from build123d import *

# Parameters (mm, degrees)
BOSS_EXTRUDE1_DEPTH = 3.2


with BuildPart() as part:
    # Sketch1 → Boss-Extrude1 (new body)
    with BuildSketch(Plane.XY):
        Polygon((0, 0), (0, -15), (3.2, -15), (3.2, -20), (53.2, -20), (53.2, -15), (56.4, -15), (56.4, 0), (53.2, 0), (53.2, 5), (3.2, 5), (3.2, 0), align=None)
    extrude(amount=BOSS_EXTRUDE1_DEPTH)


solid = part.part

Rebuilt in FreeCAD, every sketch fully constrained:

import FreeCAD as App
import Part
import Sketcher
from FreeCAD import Vector
Q = App.Units.Quantity

doc = App.newDocument("Part")
body = doc.addObject("PartDesign::Body", "Body")

# Sketch on XY plane
sketch1 = doc.addObject("Sketcher::SketchObject", "Sketch")
body.addObject(sketch1)
sketch1.AttachmentSupport = (doc.XY_Plane, [""])
sketch1.MapMode = "FlatFace"
sketch1.addGeometry([
    Part.LineSegment(Vector(0, 0, 0), Vector(0, -15, 0)),  # 0
    Part.LineSegment(Vector(0, -15, 0), Vector(3.2, -15, 0)),  # 1
    Part.LineSegment(Vector(3.2, -15, 0), Vector(3.2, -20, 0)),  # 2
    Part.LineSegment(Vector(3.2, -20, 0), Vector(53.2, -20, 0)),  # 3
    Part.LineSegment(Vector(53.2, -20, 0), Vector(53.2, -15, 0)),  # 4
    Part.LineSegment(Vector(53.2, -15, 0), Vector(56.4, -15, 0)),  # 5
    Part.LineSegment(Vector(56.4, -15, 0), Vector(56.4, 0, 0)),  # 6
    Part.LineSegment(Vector(56.4, 0, 0), Vector(53.2, 0, 0)),  # 7
    Part.LineSegment(Vector(53.2, 0, 0), Vector(53.2, 5, 0)),  # 8
    Part.LineSegment(Vector(53.2, 5, 0), Vector(3.2, 5, 0)),  # 9
    Part.LineSegment(Vector(3.2, 5, 0), Vector(3.2, 0, 0)),  # 10
    Part.LineSegment(Vector(3.2, 0, 0), Vector(0, 0, 0)),  # 11
], False)
sketch1.addConstraint([
    Sketcher.Constraint("Coincident", 0, 2, 1, 1),
    Sketcher.Constraint("Coincident", 1, 2, 2, 1),
    Sketcher.Constraint("Coincident", 2, 2, 3, 1),
    Sketcher.Constraint("Coincident", 3, 2, 4, 1),
    Sketcher.Constraint("Coincident", 4, 2, 5, 1),
    Sketcher.Constraint("Coincident", 5, 2, 6, 1),
    Sketcher.Constraint("Coincident", 6, 2, 7, 1),
    Sketcher.Constraint("Coincident", 7, 2, 8, 1),
    Sketcher.Constraint("Coincident", 8, 2, 9, 1),
    Sketcher.Constraint("Coincident", 9, 2, 10, 1),
    Sketcher.Constraint("Coincident", 10, 2, 11, 1),
    Sketcher.Constraint("Coincident", 11, 2, 0, 1),
    Sketcher.Constraint("Vertical", 0),
    Sketcher.Constraint("Horizontal", 1),
    Sketcher.Constraint("Vertical", 2),
    Sketcher.Constraint("Horizontal", 3),
    Sketcher.Constraint("Vertical", 4),
    Sketcher.Constraint("Horizontal", 5),
    Sketcher.Constraint("Vertical", 6),
    Sketcher.Constraint("Horizontal", 7),
    Sketcher.Constraint("Vertical", 8),
    Sketcher.Constraint("Horizontal", 9),
    Sketcher.Constraint("Vertical", 10),
    Sketcher.Constraint("Horizontal", 11),
    Sketcher.Constraint("Coincident", 11, 2, -1, 1),
    Sketcher.Constraint("PointOnObject", 6, 2, -1),
    Sketcher.Constraint("Horizontal", 1, 2, 4, 2),
    Sketcher.Constraint("Vertical", 4, 2, 7, 2),
    Sketcher.Constraint("Vertical", 2, 2, 9, 2),
    Sketcher.Constraint("Equal", 1, 5),
    Sketcher.Constraint("Equal", 4, 8),
    Sketcher.Constraint("DistanceX", 3, 1, 3, 2, Q("50 mm")),
    Sketcher.Constraint("DistanceY", 0, 2, 0, 1, Q("15 mm")),
    Sketcher.Constraint("DistanceY", 2, 2, 2, 1, Q("5 mm")),
    Sketcher.Constraint("DistanceX", 1, 1, 1, 2, Q("3.2 mm")),
])
pad1 = doc.addObject("PartDesign::Pad", "Pad")
body.addObject(pad1)
pad1.Profile = sketch1
pad1.Length = 3.2

doc.recompute()
